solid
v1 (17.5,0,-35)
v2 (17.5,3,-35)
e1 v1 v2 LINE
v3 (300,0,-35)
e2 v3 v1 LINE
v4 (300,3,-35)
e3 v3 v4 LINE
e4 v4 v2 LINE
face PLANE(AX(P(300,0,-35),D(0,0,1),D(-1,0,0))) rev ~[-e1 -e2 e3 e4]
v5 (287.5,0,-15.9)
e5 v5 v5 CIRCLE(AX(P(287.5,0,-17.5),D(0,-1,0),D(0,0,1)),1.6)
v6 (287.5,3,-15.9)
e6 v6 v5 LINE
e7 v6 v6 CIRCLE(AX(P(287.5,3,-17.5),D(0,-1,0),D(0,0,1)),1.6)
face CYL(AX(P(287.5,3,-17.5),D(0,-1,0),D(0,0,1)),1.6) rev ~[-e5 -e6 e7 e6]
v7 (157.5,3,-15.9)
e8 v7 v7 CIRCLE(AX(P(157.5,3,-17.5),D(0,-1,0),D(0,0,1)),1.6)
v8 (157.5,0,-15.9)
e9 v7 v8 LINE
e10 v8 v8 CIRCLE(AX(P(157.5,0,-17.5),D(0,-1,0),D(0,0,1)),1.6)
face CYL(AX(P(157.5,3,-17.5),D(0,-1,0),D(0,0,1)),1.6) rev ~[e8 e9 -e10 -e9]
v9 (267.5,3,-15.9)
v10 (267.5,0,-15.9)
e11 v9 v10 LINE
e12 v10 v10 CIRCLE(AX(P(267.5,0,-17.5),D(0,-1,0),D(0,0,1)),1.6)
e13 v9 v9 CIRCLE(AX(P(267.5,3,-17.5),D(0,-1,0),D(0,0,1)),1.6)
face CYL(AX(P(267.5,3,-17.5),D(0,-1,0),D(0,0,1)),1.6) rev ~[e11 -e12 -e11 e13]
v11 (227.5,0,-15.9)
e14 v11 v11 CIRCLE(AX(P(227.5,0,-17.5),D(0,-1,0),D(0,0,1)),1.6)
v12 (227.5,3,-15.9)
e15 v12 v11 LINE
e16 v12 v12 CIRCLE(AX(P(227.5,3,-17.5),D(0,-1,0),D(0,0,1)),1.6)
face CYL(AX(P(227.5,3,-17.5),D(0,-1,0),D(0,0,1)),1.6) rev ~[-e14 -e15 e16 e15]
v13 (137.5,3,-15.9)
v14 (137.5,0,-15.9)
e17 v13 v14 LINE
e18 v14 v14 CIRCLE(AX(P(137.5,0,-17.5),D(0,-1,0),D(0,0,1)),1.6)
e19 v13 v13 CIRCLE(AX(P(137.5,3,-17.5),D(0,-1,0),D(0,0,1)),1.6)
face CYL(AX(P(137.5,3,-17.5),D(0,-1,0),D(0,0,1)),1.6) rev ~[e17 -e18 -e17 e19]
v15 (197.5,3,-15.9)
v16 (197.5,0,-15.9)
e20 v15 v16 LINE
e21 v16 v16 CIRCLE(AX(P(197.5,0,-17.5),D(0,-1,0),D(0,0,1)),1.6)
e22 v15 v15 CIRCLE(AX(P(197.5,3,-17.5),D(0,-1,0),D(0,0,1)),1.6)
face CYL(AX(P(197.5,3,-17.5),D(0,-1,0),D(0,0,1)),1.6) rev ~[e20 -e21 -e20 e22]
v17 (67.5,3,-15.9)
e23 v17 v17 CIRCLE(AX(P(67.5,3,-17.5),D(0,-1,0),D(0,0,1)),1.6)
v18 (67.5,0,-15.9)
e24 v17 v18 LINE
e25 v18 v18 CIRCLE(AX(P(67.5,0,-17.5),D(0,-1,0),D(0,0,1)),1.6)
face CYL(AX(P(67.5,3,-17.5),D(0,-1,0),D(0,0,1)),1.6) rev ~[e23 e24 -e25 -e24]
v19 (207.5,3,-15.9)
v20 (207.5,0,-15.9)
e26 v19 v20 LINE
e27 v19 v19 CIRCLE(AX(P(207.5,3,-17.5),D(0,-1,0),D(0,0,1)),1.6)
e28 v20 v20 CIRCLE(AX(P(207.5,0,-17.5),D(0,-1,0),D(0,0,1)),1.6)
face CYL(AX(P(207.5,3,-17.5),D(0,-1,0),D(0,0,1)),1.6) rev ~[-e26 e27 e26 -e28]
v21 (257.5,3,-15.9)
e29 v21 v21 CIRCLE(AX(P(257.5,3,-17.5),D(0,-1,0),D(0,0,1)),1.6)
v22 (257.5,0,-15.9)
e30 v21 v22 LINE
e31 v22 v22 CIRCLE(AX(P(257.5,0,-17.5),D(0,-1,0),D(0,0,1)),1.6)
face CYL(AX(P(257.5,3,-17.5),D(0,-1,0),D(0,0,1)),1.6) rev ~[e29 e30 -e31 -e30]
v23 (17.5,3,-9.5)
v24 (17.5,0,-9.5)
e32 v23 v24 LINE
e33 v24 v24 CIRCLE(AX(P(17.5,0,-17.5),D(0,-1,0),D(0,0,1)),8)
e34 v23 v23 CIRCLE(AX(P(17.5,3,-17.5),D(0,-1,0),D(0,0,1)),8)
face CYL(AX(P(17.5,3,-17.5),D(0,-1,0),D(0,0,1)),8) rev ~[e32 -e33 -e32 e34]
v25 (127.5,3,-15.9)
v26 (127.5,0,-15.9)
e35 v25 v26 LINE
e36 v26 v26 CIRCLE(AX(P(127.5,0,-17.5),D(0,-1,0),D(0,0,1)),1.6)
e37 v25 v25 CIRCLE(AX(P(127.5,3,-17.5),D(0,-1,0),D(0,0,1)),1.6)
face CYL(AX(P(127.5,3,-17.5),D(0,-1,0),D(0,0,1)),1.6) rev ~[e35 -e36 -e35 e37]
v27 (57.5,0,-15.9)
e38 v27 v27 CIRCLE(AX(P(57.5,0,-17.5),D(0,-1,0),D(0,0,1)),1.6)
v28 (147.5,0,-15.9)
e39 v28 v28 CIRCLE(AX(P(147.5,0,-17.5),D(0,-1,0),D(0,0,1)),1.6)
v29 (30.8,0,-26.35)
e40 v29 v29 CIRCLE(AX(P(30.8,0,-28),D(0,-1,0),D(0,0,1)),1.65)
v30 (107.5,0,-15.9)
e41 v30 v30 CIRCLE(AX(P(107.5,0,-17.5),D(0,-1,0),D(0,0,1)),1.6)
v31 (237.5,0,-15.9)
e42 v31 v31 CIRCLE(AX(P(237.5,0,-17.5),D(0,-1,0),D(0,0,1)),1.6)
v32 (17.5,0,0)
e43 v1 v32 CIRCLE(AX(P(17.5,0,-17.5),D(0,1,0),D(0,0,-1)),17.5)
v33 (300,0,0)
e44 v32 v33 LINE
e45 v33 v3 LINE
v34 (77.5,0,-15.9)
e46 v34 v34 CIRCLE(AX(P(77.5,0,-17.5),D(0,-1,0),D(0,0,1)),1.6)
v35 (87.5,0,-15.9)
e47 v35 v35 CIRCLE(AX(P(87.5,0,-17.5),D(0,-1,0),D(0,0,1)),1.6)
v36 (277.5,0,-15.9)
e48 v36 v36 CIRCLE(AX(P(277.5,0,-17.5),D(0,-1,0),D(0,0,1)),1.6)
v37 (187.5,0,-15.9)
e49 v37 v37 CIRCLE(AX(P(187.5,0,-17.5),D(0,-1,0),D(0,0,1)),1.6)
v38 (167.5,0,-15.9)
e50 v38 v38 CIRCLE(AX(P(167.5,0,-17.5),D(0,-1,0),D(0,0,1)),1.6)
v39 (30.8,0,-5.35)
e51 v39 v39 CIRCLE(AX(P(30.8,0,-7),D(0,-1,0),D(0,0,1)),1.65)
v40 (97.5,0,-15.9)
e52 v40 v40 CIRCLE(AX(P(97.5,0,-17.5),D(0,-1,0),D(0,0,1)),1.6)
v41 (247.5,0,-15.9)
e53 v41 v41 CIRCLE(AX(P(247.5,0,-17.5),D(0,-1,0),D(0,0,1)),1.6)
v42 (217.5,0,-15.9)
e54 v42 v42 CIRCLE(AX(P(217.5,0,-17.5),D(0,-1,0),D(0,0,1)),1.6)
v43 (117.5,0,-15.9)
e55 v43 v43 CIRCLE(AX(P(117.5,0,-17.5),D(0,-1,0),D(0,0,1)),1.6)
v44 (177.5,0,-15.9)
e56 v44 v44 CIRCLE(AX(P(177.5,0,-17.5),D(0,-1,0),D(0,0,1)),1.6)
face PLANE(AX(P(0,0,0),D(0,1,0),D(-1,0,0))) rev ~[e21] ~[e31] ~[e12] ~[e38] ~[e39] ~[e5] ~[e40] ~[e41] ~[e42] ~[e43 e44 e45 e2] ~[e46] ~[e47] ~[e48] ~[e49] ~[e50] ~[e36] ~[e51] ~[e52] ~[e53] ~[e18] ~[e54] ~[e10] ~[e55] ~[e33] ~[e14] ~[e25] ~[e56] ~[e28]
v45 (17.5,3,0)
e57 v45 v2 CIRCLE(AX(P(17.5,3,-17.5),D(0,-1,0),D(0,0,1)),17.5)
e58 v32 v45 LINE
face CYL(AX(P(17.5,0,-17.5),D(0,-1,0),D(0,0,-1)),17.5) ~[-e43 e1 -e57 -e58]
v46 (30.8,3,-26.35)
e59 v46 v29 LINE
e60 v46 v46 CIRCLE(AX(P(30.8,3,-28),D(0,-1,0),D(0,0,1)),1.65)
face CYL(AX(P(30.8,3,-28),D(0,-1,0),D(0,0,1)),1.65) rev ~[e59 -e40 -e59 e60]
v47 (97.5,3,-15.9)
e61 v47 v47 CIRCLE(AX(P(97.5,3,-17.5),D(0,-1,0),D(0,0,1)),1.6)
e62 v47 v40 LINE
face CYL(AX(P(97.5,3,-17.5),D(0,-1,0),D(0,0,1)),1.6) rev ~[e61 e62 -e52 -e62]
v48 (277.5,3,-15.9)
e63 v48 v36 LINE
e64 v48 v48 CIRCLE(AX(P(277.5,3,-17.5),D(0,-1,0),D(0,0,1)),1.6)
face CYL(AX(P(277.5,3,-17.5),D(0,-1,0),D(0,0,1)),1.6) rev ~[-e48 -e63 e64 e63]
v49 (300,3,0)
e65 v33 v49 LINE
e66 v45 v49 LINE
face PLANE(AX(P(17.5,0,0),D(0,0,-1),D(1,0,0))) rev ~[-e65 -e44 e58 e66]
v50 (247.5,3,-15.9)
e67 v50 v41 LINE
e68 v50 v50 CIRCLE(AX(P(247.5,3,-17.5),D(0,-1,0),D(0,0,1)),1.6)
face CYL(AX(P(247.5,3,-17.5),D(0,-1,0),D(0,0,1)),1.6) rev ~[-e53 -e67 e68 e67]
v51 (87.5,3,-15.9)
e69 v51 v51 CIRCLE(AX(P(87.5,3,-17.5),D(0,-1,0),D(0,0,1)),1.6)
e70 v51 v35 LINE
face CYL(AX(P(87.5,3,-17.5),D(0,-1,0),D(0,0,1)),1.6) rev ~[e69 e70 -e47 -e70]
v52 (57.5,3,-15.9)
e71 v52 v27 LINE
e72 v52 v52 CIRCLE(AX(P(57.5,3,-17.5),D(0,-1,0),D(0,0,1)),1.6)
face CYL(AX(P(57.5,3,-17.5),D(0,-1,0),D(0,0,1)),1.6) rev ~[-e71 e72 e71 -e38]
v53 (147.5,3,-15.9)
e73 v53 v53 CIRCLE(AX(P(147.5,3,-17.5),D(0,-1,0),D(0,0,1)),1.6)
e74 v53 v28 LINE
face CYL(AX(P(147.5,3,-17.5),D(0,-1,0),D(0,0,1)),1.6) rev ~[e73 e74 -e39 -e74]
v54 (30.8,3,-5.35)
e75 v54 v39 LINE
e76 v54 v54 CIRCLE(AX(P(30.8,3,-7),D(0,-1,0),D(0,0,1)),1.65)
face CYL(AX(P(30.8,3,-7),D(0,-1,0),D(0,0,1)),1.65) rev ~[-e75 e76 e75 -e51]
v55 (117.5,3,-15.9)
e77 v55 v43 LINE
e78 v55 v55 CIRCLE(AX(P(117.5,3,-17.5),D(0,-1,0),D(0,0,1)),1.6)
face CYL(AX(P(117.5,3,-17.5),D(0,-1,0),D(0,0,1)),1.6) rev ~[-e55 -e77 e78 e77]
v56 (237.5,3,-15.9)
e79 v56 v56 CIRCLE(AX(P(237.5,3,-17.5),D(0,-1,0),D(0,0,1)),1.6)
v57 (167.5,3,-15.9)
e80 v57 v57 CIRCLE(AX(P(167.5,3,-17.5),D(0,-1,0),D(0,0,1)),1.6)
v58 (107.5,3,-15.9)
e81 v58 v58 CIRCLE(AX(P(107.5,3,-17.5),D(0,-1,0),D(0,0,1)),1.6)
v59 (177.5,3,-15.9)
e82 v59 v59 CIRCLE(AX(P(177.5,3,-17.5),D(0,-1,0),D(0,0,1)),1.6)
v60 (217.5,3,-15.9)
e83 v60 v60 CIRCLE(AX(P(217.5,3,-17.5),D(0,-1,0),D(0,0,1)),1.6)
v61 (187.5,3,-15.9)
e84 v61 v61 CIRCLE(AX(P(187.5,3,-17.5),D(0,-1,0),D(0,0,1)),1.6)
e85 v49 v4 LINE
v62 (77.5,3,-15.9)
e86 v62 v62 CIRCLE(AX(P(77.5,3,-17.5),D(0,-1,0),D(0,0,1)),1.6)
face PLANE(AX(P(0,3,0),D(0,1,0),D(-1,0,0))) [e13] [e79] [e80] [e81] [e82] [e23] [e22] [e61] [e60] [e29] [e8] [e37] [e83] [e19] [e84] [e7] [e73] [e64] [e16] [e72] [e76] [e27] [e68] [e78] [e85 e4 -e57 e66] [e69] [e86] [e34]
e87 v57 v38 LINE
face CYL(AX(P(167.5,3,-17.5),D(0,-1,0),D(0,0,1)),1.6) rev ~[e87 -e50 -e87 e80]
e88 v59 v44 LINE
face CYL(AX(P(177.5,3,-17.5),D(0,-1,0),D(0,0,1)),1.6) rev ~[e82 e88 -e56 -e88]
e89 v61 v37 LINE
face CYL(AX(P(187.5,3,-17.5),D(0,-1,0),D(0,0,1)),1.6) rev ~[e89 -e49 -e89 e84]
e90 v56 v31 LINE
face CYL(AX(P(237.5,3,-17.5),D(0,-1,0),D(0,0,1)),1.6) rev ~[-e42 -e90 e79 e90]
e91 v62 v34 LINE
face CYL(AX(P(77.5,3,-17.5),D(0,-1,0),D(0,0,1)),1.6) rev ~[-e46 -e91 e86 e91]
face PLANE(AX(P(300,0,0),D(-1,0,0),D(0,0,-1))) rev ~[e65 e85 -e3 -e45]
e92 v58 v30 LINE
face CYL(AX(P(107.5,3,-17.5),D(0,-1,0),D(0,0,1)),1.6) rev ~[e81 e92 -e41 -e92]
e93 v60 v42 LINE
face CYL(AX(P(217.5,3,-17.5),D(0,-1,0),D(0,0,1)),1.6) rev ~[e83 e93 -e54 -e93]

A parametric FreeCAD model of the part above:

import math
import FreeCAD as App
import Part
import Sketcher
from FreeCAD import Vector
Q = App.Units.Quantity

doc = App.newDocument("Part")
body = doc.addObject("PartDesign::Body", "Body")

sketch1 = body.newObject("Sketcher::SketchObject", "Sketch")
sketch1.AttachmentSupport = (doc.getObject("XZ_Plane"), [""])
sketch1.MapMode = "FlatFace"
sketch1.addGeometry([
    Part.ArcOfCircle(Part.Circle(Vector(18, -18, 0), Vector(0, 0, 1), 18), math.radians(90), math.radians(270)),
    Part.LineSegment(Vector(18, 0, 0), Vector(300, 0, 0)),
    Part.LineSegment(Vector(300, 0, 0), Vector(300, -35, 0)),
    Part.LineSegment(Vector(300, -35, 0), Vector(18, -35, 0)),
], False)
sketch1.addConstraint([
    Sketcher.Constraint("Tangent", 0, 1, 1, 1),
    Sketcher.Constraint("Coincident", 1, 2, 2, 1),
    Sketcher.Constraint("Coincident", 2, 2, 3, 1),
    Sketcher.Constraint("Tangent", 3, 2, 0, 2),
    Sketcher.Constraint("Horizontal", 1),
    Sketcher.Constraint("Vertical", 2),
    Sketcher.Constraint("Horizontal", 3),
    Sketcher.Constraint("PointOnObject", 0, 1, -1),
    Sketcher.Constraint("Radius", 0, Q("17.5 mm")),
    Sketcher.Constraint("DistanceX", -1, 1, 1, 2, Q("300 mm")),
    Sketcher.Constraint("DistanceX", -1, 1, 0, 3, Q("17.5 mm")),
])
pad1 = body.newObject("PartDesign::Pad", "Pad")
pad1.Profile = sketch1
pad1.Length = 3
pad1.Reversed = True

sketch2 = body.newObject("Sketcher::SketchObject", "Sketch001")
sketch2.AttachmentSupport = (doc.getObject("XZ_Plane"), [""])
sketch2.MapMode = "FlatFace"
sketch2.AttachmentOffset = App.Placement(Vector(0, 0, -3), App.Rotation())
sketch2.addGeometry(Part.Circle(Vector(18, -18, 0), Vector(0, 0, 1), 8), False)
sketch2.addConstraint([
    Sketcher.Constraint("Diameter", 0, Q("16 mm")),
    Sketcher.Constraint("DistanceX", -1, 1, 0, 3, Q("17.5 mm")),
    Sketcher.Constraint("DistanceY", 0, 3, -1, 1, Q("17.5 mm")),
])
doc.recompute()
hole = body.newObject("PartDesign::Hole", "Hole")
hole.Profile = sketch2
hole.ThreadType = "None"
hole.Diameter = 16
hole.DepthType = "ThroughAll"
hole.Reversed = True

sketch3 = body.newObject("Sketcher::SketchObject", "Sketch002")
sketch3.AttachmentSupport = (doc.getObject("XZ_Plane"), [""])
sketch3.MapMode = "FlatFace"
sketch3.AttachmentOffset = App.Placement(Vector(0, 0, -3), App.Rotation())
sketch3.addGeometry([
    Part.Circle(Vector(30.8, -7, 0), Vector(0, 0, 1), 1.6),
    Part.Circle(Vector(30.8, -28, 0), Vector(0, 0, 1), 1.6),
], False)
sketch3.addConstraint([
    Sketcher.Constraint("Equal", 0, 1),
    Sketcher.Constraint("Vertical", 0, 3, 1, 3),
    Sketcher.Constraint("Diameter", 0, Q("3.3 mm")),
    Sketcher.Constraint("DistanceY", 0, 3, -1, 1, Q("7 mm")),
    Sketcher.Constraint("DistanceY", 1, 3, -1, 1, Q("28 mm")),
    Sketcher.Constraint("DistanceX", -1, 1, 0, 3, Q("30.8 mm")),
])
doc.recompute()
hole2 = body.newObject("PartDesign::Hole", "Hole001")
hole2.Profile = sketch3
hole2.ThreadType = "None"
hole2.Diameter = 3.3
hole2.DepthType = "ThroughAll"
hole2.Reversed = True

sketch4 = body.newObject("Sketcher::SketchObject", "Sketch003")
sketch4.AttachmentSupport = (doc.getObject("XZ_Plane"), [""])
sketch4.MapMode = "FlatFace"
sketch4.AttachmentOffset = App.Placement(Vector(0, 0, -3), App.Rotation())
sketch4.addGeometry([
    Part.Circle(Vector(57.5, -17.5, 0), Vector(0, 0, 1), 1.6),
    Part.Circle(Vector(67.5, -17.5, 0), Vector(0, 0, 1), 1.6),
    Part.Circle(Vector(77.5, -17.5, 0), Vector(0, 0, 1), 1.6),
    Part.Circle(Vector(87.5, -17.5, 0), Vector(0, 0, 1), 1.6),
    Part.Circle(Vector(97.5, -17.5, 0), Vector(0, 0, 1), 1.6),
    Part.Circle(Vector(107.5, -17.5, 0), Vector(0, 0, 1), 1.6),
    Part.Circle(Vector(117.5, -17.5, 0), Vector(0, 0, 1), 1.6),
    Part.Circle(Vector(127.5, -17.5, 0), Vector(0, 0, 1), 1.6),
    Part.Circle(Vector(137.5, -17.5, 0), Vector(0, 0, 1), 1.6),
    Part.Circle(Vector(147.5, -17.5, 0), Vector(0, 0, 1), 1.6),
    Part.Circle(Vector(157.5, -17.5, 0), Vector(0, 0, 1), 1.6),
    Part.Circle(Vector(167.5, -17.5, 0), Vector(0, 0, 1), 1.6),
    Part.Circle(Vector(177.5, -17.5, 0), Vector(0, 0, 1), 1.6),
    Part.Circle(Vector(187.5, -17.5, 0), Vector(0, 0, 1), 1.6),
    Part.Circle(Vector(197.5, -17.5, 0), Vector(0, 0, 1), 1.6),
    Part.Circle(Vector(207.5, -17.5, 0), Vector(0, 0, 1), 1.6),
    Part.Circle(Vector(217.5, -17.5, 0), Vector(0, 0, 1), 1.6),
    Part.Circle(Vector(227.5, -17.5, 0), Vector(0, 0, 1), 1.6),
    Part.Circle(Vector(237.5, -17.5, 0), Vector(0, 0, 1), 1.6),
    Part.Circle(Vector(247.5, -17.5, 0), Vector(0, 0, 1), 1.6),
    Part.Circle(Vector(257.5, -17.5, 0), Vector(0, 0, 1), 1.6),
    Part.Circle(Vector(267.5, -17.5, 0), Vector(0, 0, 1), 1.6),
    Part.Circle(Vector(277.5, -17.5, 0), Vector(0, 0, 1), 1.6),
    Part.Circle(Vector(287.5, -17.5, 0), Vector(0, 0, 1), 1.6),
], False)
sketch4.addConstraint([
    Sketcher.Constraint("Equal", 0, 1),
    Sketcher.Constraint("Equal", 1, 2),
    Sketcher.Constraint("Equal", 2, 3),
    Sketcher.Constraint("Equal", 3, 4),
    Sketcher.Constraint("Equal", 4, 5),
    Sketcher.Constraint("Equal", 5, 6),
    Sketcher.Constraint("Equal", 6, 7),
    Sketcher.Constraint("Equal", 7, 8),
    Sketcher.Constraint("Equal", 8, 9),
    Sketcher.Constraint("Equal", 9, 10),
    Sketcher.Constraint("Equal", 10, 11),
    Sketcher.Constraint("Equal", 11, 12),
    Sketcher.Constraint("Equal", 12, 13),
    Sketcher.Constraint("Equal", 13, 14),
    Sketcher.Constraint("Equal", 14, 15),
    Sketcher.Constraint("Equal", 15, 16),
    Sketcher.Constraint("Equal", 16, 17),
    Sketcher.Constraint("Equal", 17, 18),
    Sketcher.Constraint("Equal", 18, 19),
    Sketcher.Constraint("Equal", 19, 20),
    Sketcher.Constraint("Equal", 20, 21),
    Sketcher.Constraint("Equal", 21, 22),
    Sketcher.Constraint("Equal", 22, 23),
    Sketcher.Constraint("Horizontal", 0, 3, 1, 3),
    Sketcher.Constraint("Horizontal", 1, 3, 2, 3),
    Sketcher.Constraint("Horizontal", 2, 3, 3, 3),
    Sketcher.Constraint("Horizontal", 3, 3, 4, 3),
    Sketcher.Constraint("Horizontal", 4, 3, 5, 3),
    Sketcher.Constraint("Horizontal", 5, 3, 6, 3),
    Sketcher.Constraint("Horizontal", 6, 3, 7, 3),
    Sketcher.Constraint("Horizontal", 7, 3, 8, 3),
    Sketcher.Constraint("Horizontal", 8, 3, 9, 3),
    Sketcher.Constraint("Horizontal", 9, 3, 10, 3),
    Sketcher.Constraint("Horizontal", 10, 3, 11, 3),
    Sketcher.Constraint("Horizontal", 11, 3, 12, 3),
    Sketcher.Constraint("Horizontal", 12, 3, 13, 3),
    Sketcher.Constraint("Horizontal", 13, 3, 14, 3),
    Sketcher.Constraint("Horizontal", 14, 3, 15, 3),
    Sketcher.Constraint("Horizontal", 15, 3, 16, 3),
    Sketcher.Constraint("Horizontal", 16, 3, 17, 3),
    Sketcher.Constraint("Horizontal", 17, 3, 18, 3),
    Sketcher.Constraint("Horizontal", 18, 3, 19, 3),
    Sketcher.Constraint("Horizontal", 19, 3, 20, 3),
    Sketcher.Constraint("Horizontal", 20, 3, 21, 3),
    Sketcher.Constraint("Horizontal", 21, 3, 22, 3),
    Sketcher.Constraint("Horizontal", 22, 3, 23, 3),
    Sketcher.Constraint("Diameter", 0, Q("3.2 mm")),
    Sketcher.Constraint("DistanceX", 0, 3, 1, 3, Q("10 mm")),
    Sketcher.Constraint("DistanceX", 1, 3, 2, 3, Q("10 mm")),
    Sketcher.Constraint("DistanceX", 2, 3, 3, 3, Q("10 mm")),
    Sketcher.Constraint("DistanceX", 3, 3, 4, 3, Q("10 mm")),
    Sketcher.Constraint("DistanceX", 4, 3, 5, 3, Q("10 mm")),
    Sketcher.Constraint("DistanceX", 5, 3, 6, 3, Q("10 mm")),
    Sketcher.Constraint("DistanceX", 6, 3, 7, 3, Q("10 mm")),
    Sketcher.Constraint("DistanceX", 7, 3, 8, 3, Q("10 mm")),
    Sketcher.Constraint("DistanceX", 8, 3, 9, 3, Q("10 mm")),
    Sketcher.Constraint("DistanceX", 9, 3, 10, 3, Q("10 mm")),
    Sketcher.Constraint("DistanceX", 10, 3, 11, 3, Q("10 mm")),
    Sketcher.Constraint("DistanceX", 11, 3, 12, 3, Q("10 mm")),
    Sketcher.Constraint("DistanceX", 12, 3, 13, 3, Q("10 mm")),
    Sketcher.Constraint("DistanceX", 13, 3, 14, 3, Q("10 mm")),
    Sketcher.Constraint("DistanceX", 14, 3, 15, 3, Q("10 mm")),
    Sketcher.Constraint("DistanceX", 15, 3, 16, 3, Q("10 mm")),
    Sketcher.Constraint("DistanceX", 16, 3, 17, 3, Q("10 mm")),
    Sketcher.Constraint("DistanceX", 17, 3, 18, 3, Q("10 mm")),
    Sketcher.Constraint("DistanceX", 18, 3, 19, 3, Q("10 mm")),
    Sketcher.Constraint("DistanceX", 19, 3, 20, 3, Q("10 mm")),
    Sketcher.Constraint("DistanceX", 20, 3, 21, 3, Q("10 mm")),
    Sketcher.Constraint("DistanceX", 21, 3, 22, 3, Q("10 mm")),
    Sketcher.Constraint("DistanceX", 22, 3, 23, 3, Q("10 mm")),
    Sketcher.Constraint("DistanceX", -1, 1, 0, 3, Q("57.5 mm")),
    Sketcher.Constraint("DistanceY", 0, 3, -1, 1, Q("17.5 mm")),
])
doc.recompute()
hole3 = body.newObject("PartDesign::Hole", "Hole002")
hole3.Profile = sketch4
hole3.ThreadType = "None"
hole3.Diameter = 3.2
hole3.DepthType = "ThroughAll"
hole3.Reversed = True

doc.recompute()
